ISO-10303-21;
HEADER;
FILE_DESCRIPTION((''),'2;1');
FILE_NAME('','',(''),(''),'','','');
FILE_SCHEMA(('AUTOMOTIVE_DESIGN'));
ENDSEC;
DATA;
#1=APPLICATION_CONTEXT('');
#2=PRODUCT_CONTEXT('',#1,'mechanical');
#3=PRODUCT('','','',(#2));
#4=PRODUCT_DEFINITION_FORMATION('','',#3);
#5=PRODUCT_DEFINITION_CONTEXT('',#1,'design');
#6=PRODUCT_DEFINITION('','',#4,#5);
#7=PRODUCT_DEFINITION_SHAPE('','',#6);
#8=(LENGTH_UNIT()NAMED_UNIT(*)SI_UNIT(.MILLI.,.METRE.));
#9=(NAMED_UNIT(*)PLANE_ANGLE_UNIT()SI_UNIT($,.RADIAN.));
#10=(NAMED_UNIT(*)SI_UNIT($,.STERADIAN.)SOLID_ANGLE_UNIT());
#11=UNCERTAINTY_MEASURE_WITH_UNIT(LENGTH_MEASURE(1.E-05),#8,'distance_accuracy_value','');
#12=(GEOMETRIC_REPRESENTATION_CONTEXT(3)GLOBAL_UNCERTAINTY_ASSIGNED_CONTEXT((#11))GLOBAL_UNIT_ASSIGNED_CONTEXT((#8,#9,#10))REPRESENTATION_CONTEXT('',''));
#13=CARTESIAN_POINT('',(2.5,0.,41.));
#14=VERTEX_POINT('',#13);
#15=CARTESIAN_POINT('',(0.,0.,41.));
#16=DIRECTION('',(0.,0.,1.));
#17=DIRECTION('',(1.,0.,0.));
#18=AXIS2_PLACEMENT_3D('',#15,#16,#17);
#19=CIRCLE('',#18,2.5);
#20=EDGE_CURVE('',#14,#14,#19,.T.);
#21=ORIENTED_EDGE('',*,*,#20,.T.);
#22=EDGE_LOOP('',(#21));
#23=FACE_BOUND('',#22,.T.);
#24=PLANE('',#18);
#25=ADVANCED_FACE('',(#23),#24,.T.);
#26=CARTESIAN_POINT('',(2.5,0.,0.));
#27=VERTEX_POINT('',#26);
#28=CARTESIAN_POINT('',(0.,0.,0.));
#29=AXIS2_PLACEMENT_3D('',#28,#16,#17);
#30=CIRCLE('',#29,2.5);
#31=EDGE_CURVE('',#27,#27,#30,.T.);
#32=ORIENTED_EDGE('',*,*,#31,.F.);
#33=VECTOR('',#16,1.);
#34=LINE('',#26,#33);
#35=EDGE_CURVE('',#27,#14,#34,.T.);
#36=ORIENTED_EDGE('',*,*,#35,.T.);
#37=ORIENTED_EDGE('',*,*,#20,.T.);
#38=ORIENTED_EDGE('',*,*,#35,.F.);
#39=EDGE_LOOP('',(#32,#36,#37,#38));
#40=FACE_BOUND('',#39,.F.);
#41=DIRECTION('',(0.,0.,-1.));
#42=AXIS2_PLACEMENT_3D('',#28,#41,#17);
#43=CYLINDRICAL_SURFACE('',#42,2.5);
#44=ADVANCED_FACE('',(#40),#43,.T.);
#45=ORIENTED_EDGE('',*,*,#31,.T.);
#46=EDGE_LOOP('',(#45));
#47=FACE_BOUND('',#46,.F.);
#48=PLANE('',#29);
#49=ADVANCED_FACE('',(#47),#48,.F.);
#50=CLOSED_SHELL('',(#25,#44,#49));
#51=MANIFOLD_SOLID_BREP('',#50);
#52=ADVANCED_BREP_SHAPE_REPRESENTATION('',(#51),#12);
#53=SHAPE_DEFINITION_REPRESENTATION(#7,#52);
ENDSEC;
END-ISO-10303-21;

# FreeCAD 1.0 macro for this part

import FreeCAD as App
import Part
import Sketcher

V = App.Vector
Q = App.Units.Quantity

doc = App.newDocument("Part")
body = doc.addObject("PartDesign::Body", "Body")

# Sketch on XY plane
sketch1 = body.newObject("Sketcher::SketchObject", "Sketch")
sketch1.AttachmentSupport = (doc.getObject("XY_Plane"), [""])
sketch1.MapMode = "FlatFace"
sketch1.addGeometry(Part.Circle(V(0, 0, 0), V(0, 0, 1), 2.5), False)
sketch1.addConstraint([
    Sketcher.Constraint("Coincident", 0, 3, -1, 1),
    Sketcher.Constraint("Diameter", 0, Q("5 mm")),
])
pad1 = body.newObject("PartDesign::Pad", "Pad")
pad1.Profile = sketch1
pad1.Length = 41

doc.recompute()
